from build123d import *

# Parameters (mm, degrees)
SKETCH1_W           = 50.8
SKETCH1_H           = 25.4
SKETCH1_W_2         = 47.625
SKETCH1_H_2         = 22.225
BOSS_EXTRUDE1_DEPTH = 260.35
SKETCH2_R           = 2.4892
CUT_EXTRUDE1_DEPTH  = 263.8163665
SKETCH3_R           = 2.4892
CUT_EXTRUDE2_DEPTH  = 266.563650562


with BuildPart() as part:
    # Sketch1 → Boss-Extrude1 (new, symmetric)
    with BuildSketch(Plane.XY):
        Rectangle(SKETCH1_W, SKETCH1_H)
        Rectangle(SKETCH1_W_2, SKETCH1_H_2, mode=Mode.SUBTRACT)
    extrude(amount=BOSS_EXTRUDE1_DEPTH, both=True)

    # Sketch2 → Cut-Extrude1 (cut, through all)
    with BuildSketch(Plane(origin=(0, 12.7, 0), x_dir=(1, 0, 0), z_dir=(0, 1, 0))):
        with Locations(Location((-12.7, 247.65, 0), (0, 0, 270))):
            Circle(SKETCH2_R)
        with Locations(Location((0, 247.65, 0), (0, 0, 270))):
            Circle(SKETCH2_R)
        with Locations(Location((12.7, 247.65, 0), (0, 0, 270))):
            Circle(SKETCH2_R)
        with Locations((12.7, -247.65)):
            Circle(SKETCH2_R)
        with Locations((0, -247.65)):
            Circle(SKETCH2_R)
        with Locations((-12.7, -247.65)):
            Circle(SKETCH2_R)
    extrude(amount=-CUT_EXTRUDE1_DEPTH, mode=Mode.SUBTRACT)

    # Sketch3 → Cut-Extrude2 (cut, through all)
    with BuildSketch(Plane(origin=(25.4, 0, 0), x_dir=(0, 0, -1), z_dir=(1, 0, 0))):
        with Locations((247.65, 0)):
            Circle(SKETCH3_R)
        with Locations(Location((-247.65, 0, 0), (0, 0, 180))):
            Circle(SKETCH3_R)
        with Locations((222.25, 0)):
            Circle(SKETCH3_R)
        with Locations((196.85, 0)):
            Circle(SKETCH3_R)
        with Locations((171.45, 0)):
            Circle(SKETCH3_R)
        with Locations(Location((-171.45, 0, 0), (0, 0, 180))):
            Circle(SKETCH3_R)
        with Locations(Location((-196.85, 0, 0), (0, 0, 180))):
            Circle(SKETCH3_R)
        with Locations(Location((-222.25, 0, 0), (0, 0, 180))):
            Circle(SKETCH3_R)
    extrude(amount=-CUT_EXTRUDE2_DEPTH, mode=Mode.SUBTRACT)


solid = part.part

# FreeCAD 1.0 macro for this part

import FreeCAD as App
import Part
import Sketcher
Q = App.Units.Quantity

doc = App.newDocument("Part")
params = doc.addObject("Spreadsheet::Sheet", "Params")
for row, (alias, value) in enumerate([
    ("sketch1_width", "2 in"),
    ("sketch1_height", "1 in"),
    ("sketch1_width2", "1.875 in"),
    ("sketch1_height2", "0.875 in"),
    ("pad1_length", "20.5 in"),
    ("sketch2_diameter", "0.196 in"),
    ("sketch3_diameter", "0.196 in"),
], start=1):
    params.set(f"A{row}", alias)
    params.set(f"B{row}", "=" + value)
    params.setAlias(f"B{row}", alias)

body = doc.addObject("PartDesign::Body", "Body")

# Sketch on XY plane
sketch1 = doc.addObject("Sketcher::SketchObject", "Sketch")
body.addObject(sketch1)
sketch1.AttachmentSupport = (doc.XY_Plane, [""])
sketch1.MapMode = "FlatFace"
sketch1.addGeometry(Part.LineSegment(App.Vector(-25, 13, 0), App.Vector(-25, -13, 0)), False)
sketch1.addGeometry(Part.LineSegment(App.Vector(-25, -13, 0), App.Vector(25, -13, 0)), False)
sketch1.addGeometry(Part.LineSegment(App.Vector(25, -13, 0), App.Vector(25, 13, 0)), False)
sketch1.addGeometry(Part.LineSegment(App.Vector(25, 13, 0), App.Vector(-25, 13, 0)), False)
sketch1.addGeometry(Part.LineSegment(App.Vector(24, -11, 0), App.Vector(-24, -11, 0)), False)
sketch1.addGeometry(Part.LineSegment(App.Vector(-24, -11, 0), App.Vector(-24, 11, 0)), False)
sketch1.addGeometry(Part.LineSegment(App.Vector(-24, 11, 0), App.Vector(24, 11, 0)), False)
sketch1.addGeometry(Part.LineSegment(App.Vector(24, 11, 0), App.Vector(24, -11, 0)), False)
sketch1.addConstraint(Sketcher.Constraint("Coincident", 0, 2, 1, 1))
sketch1.addConstraint(Sketcher.Constraint("Coincident", 1, 2, 2, 1))
sketch1.addConstraint(Sketcher.Constraint("Coincident", 2, 2, 3, 1))
sketch1.addConstraint(Sketcher.Constraint("Coincident", 3, 2, 0, 1))
sketch1.addConstraint(Sketcher.Constraint("Coincident", 4, 2, 5, 1))
sketch1.addConstraint(Sketcher.Constraint("Coincident", 5, 2, 6, 1))
sketch1.addConstraint(Sketcher.Constraint("Coincident", 6, 2, 7, 1))
sketch1.addConstraint(Sketcher.Constraint("Coincident", 7, 2, 4, 1))
sketch1.addConstraint(Sketcher.Constraint("Vertical", 0))
sketch1.addConstraint(Sketcher.Constraint("Horizontal", 1))
sketch1.addConstraint(Sketcher.Constraint("Vertical", 2))
sketch1.addConstraint(Sketcher.Constraint("Horizontal", 3))
sketch1.addConstraint(Sketcher.Constraint("Horizontal", 4))
sketch1.addConstraint(Sketcher.Constraint("Vertical", 5))
sketch1.addConstraint(Sketcher.Constraint("Horizontal", 6))
sketch1.addConstraint(Sketcher.Constraint("Vertical", 7))
sketch1.addConstraint(Sketcher.Constraint("Symmetric", 0, 2, 2, 2, -1, 1))
sketch1.addConstraint(Sketcher.Constraint("Symmetric", 4, 2, 6, 2, -1, 1))
sketch1.addConstraint(Sketcher.Constraint("DistanceX", 1, 1, 1, 2, Q("2 in")))
sketch1.addConstraint(Sketcher.Constraint("DistanceY", 0, 2, 0, 1, Q("1 in")))
sketch1.addConstraint(Sketcher.Constraint("DistanceX", 4, 2, 4, 1, Q("1.875 in")))
sketch1.addConstraint(Sketcher.Constraint("DistanceY", 5, 1, 5, 2, Q("0.875 in")))
sketch1.setExpression("Constraints[18]", "Params.sketch1_width")
sketch1.setExpression("Constraints[19]", "Params.sketch1_height")
sketch1.setExpression("Constraints[20]", "Params.sketch1_width2")
sketch1.setExpression("Constraints[21]", "Params.sketch1_height2")
pad1 = doc.addObject("PartDesign::Pad", "Pad")
body.addObject(pad1)
pad1.Profile = sketch1
pad1.setExpression("Length", "Params.pad1_length")
pad1.Midplane = True

# Sketch on XZ plane
sketch2 = doc.addObject("Sketcher::SketchObject", "Sketch001")
body.addObject(sketch2)
sketch2.AttachmentSupport = (doc.XZ_Plane, [""])
sketch2.MapMode = "FlatFace"
sketch2.AttachmentOffset = App.Placement(App.Vector(0, 0, -0.5 * 25.4), App.Rotation())
sketch2.addGeometry(Part.Circle(App.Vector(-12.7, -247.7, 0), App.Vector(0, 0, 1), 2.5), False)
sketch2.addGeometry(Part.Circle(App.Vector(0, -247.7, 0), App.Vector(0, 0, 1), 2.5), False)
sketch2.addGeometry(Part.Circle(App.Vector(12.7, -247.7, 0), App.Vector(0, 0, 1), 2.5), False)
sketch2.addGeometry(Part.Circle(App.Vector(12.7, 247.7, 0), App.Vector(0, 0, 1), 2.5), False)
sketch2.addGeometry(Part.Circle(App.Vector(0, 247.7, 0), App.Vector(0, 0, 1), 2.5), False)
sketch2.addGeometry(Part.Circle(App.Vector(-12.7, 247.7, 0), App.Vector(0, 0, 1), 2.5), False)
sketch2.addConstraint(Sketcher.Constraint("Equal", 0, 1))
sketch2.addConstraint(Sketcher.Constraint("Equal", 1, 2))
sketch2.addConstraint(Sketcher.Constraint("Equal", 2, 3))
sketch2.addConstraint(Sketcher.Constraint("Equal", 3, 4))
sketch2.addConstraint(Sketcher.Constraint("Equal", 4, 5))
sketch2.addConstraint(Sketcher.Constraint("Symmetric", 0, 3, 3, 3, -1, 1))
sketch2.addConstraint(Sketcher.Constraint("Symmetric", 1, 3, 4, 3, -1, 1))
sketch2.addConstraint(Sketcher.Constraint("Symmetric", 2, 3, 5, 3, -1, 1))
sketch2.addConstraint(Sketcher.Constraint("Symmetric", 0, 3, 2, 3, -2))
sketch2.addConstraint(Sketcher.Constraint("PointOnObject", 1, 3, -2))
sketch2.addConstraint(Sketcher.Constraint("Horizontal", 0, 3, 1, 3))
sketch2.addConstraint(Sketcher.Constraint("Diameter", 0, Q("0.196 in")))
sketch2.addConstraint(Sketcher.Constraint("DistanceX", 0, 3, 2, 3, Q("1 in")))
sketch2.addConstraint(Sketcher.Constraint("DistanceY", 2, 3, 3, 3, Q("19.5 in")))
sketch2.setExpression("Constraints[11]", "Params.sketch2_diameter")
pocket1 = doc.addObject("PartDesign::Pocket", "Pocket")
body.addObject(pocket1)
pocket1.Profile = sketch2
pocket1.Type = "ThroughAll"
pocket1.Reversed = True

# Sketch on YZ plane
sketch3 = doc.addObject("Sketcher::SketchObject", "Sketch002")
body.addObject(sketch3)
sketch3.AttachmentSupport = (doc.YZ_Plane, [""])
sketch3.MapMode = "FlatFace"
sketch3.AttachmentOffset = App.Placement(App.Vector(0, 0, 1 * 25.4), App.Rotation())
sketch3.addGeometry(Part.Circle(App.Vector(0, -247.7, 0), App.Vector(0, 0, 1), 2.5), False)
sketch3.addGeometry(Part.Circle(App.Vector(0, 247.7, 0), App.Vector(0, 0, 1), 2.5), False)
sketch3.addGeometry(Part.Circle(App.Vector(0, -222.2, 0), App.Vector(0, 0, 1), 2.5), False)
sketch3.addGeometry(Part.Circle(App.Vector(0, -196.8, 0), App.Vector(0, 0, 1), 2.5), False)
sketch3.addGeometry(Part.Circle(App.Vector(0, -171.4, 0), App.Vector(0, 0, 1), 2.5), False)
sketch3.addGeometry(Part.Circle(App.Vector(0, 171.4, 0), App.Vector(0, 0, 1), 2.5), False)
sketch3.addGeometry(Part.Circle(App.Vector(0, 196.8, 0), App.Vector(0, 0, 1), 2.5), False)
sketch3.addGeometry(Part.Circle(App.Vector(0, 222.2, 0), App.Vector(0, 0, 1), 2.5), False)
sketch3.addConstraint(Sketcher.Constraint("Equal", 0, 1))
sketch3.addConstraint(Sketcher.Constraint("Equal", 1, 2))
sketch3.addConstraint(Sketcher.Constraint("Equal", 2, 3))
sketch3.addConstraint(Sketcher.Constraint("Equal", 3, 4))
sketch3.addConstraint(Sketcher.Constraint("Equal", 4, 5))
sketch3.addConstraint(Sketcher.Constraint("Equal", 5, 6))
sketch3.addConstraint(Sketcher.Constraint("Equal", 6, 7))
sketch3.addConstraint(Sketcher.Constraint("Symmetric", 0, 3, 1, 3, -1, 1))
sketch3.addConstraint(Sketcher.Constraint("Symmetric", 4, 3, 5, 3, -1, 1))
sketch3.addConstraint(Sketcher.Constraint("Symmetric", 3, 3, 6, 3, -1, 1))
sketch3.addConstraint(Sketcher.Constraint("Symmetric", 2, 3, 7, 3, -1, 1))
sketch3.addConstraint(Sketcher.Constraint("PointOnObject", 0, 3, -2))
sketch3.addConstraint(Sketcher.Constraint("PointOnObject", 2, 3, -2))
sketch3.addConstraint(Sketcher.Constraint("PointOnObject", 3, 3, -2))
sketch3.addConstraint(Sketcher.Constraint("PointOnObject", 4, 3, -2))
sketch3.addConstraint(Sketcher.Constraint("Diameter", 0, Q("0.196 in")))
sketch3.addConstraint(Sketcher.Constraint("DistanceY", 0, 3, 2, 3, Q("1 in")))
sketch3.addConstraint(Sketcher.Constraint("DistanceY", 2, 3, 3, 3, Q("1 in")))
sketch3.addConstraint(Sketcher.Constraint("DistanceY", 3, 3, 4, 3, Q("1 in")))
sketch3.addConstraint(Sketcher.Constraint("DistanceY", 0, 3, 1, 3, Q("19.5 in")))
sketch3.setExpression("Constraints[15]", "Params.sketch3_diameter")
pocket2 = doc.addObject("PartDesign::Pocket", "Pocket001")
body.addObject(pocket2)
pocket2.Profile = sketch3
pocket2.Type = "ThroughAll"

doc.recompute()
